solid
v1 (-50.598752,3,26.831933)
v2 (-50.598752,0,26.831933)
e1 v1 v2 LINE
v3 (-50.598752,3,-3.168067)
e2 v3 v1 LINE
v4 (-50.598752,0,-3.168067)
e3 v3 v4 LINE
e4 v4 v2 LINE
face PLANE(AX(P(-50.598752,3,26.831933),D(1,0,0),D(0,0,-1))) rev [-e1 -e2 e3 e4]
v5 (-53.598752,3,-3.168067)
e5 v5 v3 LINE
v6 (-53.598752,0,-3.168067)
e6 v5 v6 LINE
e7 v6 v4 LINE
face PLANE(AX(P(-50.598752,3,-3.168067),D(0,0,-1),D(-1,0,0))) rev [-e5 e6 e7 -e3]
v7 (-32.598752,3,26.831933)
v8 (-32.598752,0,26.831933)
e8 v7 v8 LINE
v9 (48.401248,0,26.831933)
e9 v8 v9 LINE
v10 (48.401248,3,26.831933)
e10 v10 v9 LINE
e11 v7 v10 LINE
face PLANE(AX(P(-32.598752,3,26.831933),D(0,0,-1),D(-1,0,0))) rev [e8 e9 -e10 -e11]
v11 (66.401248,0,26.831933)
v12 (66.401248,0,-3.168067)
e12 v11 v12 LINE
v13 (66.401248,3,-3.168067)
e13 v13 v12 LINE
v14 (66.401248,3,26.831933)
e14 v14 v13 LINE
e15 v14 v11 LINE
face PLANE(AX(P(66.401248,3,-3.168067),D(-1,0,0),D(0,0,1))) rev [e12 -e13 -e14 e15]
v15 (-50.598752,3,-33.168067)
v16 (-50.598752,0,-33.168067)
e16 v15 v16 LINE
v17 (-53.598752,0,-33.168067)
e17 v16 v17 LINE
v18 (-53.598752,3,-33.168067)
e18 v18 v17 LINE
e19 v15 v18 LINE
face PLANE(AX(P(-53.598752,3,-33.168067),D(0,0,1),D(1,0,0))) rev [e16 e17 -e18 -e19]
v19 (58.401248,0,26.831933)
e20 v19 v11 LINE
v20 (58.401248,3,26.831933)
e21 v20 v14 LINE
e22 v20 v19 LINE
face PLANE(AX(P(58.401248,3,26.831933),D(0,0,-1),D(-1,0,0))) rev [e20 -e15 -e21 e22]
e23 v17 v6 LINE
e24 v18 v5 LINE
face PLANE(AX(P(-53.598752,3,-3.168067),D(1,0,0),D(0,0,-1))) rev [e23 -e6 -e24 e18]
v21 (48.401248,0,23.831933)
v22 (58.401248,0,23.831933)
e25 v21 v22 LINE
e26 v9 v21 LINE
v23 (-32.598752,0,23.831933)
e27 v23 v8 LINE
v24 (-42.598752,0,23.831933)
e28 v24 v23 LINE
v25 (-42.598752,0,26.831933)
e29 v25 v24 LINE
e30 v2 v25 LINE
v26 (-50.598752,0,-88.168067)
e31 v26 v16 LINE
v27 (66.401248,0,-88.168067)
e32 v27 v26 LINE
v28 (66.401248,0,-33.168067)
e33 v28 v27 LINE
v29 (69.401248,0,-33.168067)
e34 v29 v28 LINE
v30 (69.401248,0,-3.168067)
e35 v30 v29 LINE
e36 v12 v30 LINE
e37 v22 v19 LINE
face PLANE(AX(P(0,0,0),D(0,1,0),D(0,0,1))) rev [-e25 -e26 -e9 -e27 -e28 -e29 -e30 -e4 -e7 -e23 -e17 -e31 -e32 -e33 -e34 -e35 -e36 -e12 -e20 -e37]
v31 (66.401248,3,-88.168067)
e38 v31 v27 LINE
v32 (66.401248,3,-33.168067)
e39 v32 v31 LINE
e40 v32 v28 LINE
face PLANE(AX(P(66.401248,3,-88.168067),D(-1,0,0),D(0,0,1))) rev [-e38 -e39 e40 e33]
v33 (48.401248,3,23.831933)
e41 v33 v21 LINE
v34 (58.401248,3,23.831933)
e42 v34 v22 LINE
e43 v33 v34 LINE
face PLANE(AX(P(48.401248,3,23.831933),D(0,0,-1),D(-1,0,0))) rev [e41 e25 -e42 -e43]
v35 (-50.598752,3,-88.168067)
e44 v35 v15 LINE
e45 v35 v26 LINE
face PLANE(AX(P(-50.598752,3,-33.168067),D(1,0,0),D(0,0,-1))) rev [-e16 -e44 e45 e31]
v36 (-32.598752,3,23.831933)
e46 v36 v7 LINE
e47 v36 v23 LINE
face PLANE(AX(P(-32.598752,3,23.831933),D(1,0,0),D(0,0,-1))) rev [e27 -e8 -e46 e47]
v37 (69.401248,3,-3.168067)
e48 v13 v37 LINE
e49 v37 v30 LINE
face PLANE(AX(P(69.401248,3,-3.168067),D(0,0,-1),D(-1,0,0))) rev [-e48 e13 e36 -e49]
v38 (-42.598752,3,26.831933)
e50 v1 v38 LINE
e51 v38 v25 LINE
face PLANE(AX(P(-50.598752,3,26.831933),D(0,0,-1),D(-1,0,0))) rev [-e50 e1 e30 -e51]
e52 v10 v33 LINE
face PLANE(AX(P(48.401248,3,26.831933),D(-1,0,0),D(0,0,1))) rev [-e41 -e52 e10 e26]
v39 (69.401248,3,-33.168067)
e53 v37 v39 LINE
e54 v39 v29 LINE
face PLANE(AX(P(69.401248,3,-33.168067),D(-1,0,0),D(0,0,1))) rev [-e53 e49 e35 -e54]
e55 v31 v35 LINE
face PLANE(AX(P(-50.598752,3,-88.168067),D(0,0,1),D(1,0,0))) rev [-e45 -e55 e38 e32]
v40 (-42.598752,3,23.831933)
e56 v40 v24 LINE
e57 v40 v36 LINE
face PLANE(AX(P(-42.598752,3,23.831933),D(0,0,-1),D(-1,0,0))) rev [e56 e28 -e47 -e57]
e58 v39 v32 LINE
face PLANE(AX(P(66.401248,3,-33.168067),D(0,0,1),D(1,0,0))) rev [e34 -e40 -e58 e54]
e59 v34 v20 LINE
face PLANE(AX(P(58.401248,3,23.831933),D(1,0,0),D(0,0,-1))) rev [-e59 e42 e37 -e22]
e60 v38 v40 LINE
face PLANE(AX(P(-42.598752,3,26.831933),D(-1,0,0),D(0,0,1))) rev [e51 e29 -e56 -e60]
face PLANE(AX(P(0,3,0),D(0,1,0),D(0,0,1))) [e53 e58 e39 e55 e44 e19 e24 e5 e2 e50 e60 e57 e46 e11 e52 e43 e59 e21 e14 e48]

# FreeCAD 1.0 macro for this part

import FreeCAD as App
import Part
import Sketcher
from FreeCAD import Vector

doc = App.newDocument("Part")
params = doc.addObject("Spreadsheet::Sheet", "Params")
for row, (alias, value) in enumerate([
    ("sketch1_width", "8 mm"),
    ("sketch1_width2", "10 mm"),
    ("sketch1_width3", "81 mm"),
    ("sketch1_width4", "3 mm"),
    ("sketch1_height", "30 mm"),
    ("pad1_length", "3 mm"),
], start=1):
    params.set(f"A{row}", alias)
    params.set(f"B{row}", "=" + value)
    params.setAlias(f"B{row}", alias)

body = doc.addObject("PartDesign::Body", "Body")

# Sketch on XZ plane
sketch1 = body.newObject("Sketcher::SketchObject", "Sketch")
sketch1.AttachmentSupport = (doc.getObject("XZ_Plane"), [""])
sketch1.MapMode = "FlatFace"
sketch1.addGeometry(Part.LineSegment(Vector(-50.6, -3.2, 0), Vector(-50.6, 26.8, 0)), False)
sketch1.addGeometry(Part.LineSegment(Vector(-50.6, 26.8, 0), Vector(-42.6, 26.8, 0)), False)
sketch1.addGeometry(Part.LineSegment(Vector(-42.6, 26.8, 0), Vector(-42.6, 23.8, 0)), False)
sketch1.addGeometry(Part.LineSegment(Vector(-42.6, 23.8, 0), Vector(-32.6, 23.8, 0)), False)
sketch1.addGeometry(Part.LineSegment(Vector(-32.6, 23.8, 0), Vector(-32.6, 26.8, 0)), False)
sketch1.addGeometry(Part.LineSegment(Vector(-32.6, 26.8, 0), Vector(48.4, 26.8, 0)), False)
sketch1.addGeometry(Part.LineSegment(Vector(48.4, 26.8, 0), Vector(48.4, 23.8, 0)), False)
sketch1.addGeometry(Part.LineSegment(Vector(48.4, 23.8, 0), Vector(58.4, 23.8, 0)), False)
sketch1.addGeometry(Part.LineSegment(Vector(58.4, 23.8, 0), Vector(58.4, 26.8, 0)), False)
sketch1.addGeometry(Part.LineSegment(Vector(58.4, 26.8, 0), Vector(66.4, 26.8, 0)), False)
sketch1.addGeometry(Part.LineSegment(Vector(66.4, 26.8, 0), Vector(66.4, -3.2, 0)), False)
sketch1.addGeometry(Part.LineSegment(Vector(66.4, -3.2, 0), Vector(69.4, -3.2, 0)), False)
sketch1.addGeometry(Part.LineSegment(Vector(69.4, -3.2, 0), Vector(69.4, -33.2, 0)), False)
sketch1.addGeometry(Part.LineSegment(Vector(69.4, -33.2, 0), Vector(66.4, -33.2, 0)), False)
sketch1.addGeometry(Part.LineSegment(Vector(66.4, -33.2, 0), Vector(66.4, -88.2, 0)), False)
sketch1.addGeometry(Part.LineSegment(Vector(66.4, -88.2, 0), Vector(-50.6, -88.2, 0)), False)
sketch1.addGeometry(Part.LineSegment(Vector(-50.6, -88.2, 0), Vector(-50.6, -33.2, 0)), False)
sketch1.addGeometry(Part.LineSegment(Vector(-50.6, -33.2, 0), Vector(-53.6, -33.2, 0)), False)
sketch1.addGeometry(Part.LineSegment(Vector(-53.6, -33.2, 0), Vector(-53.6, -3.2, 0)), False)
sketch1.addGeometry(Part.LineSegment(Vector(-53.6, -3.2, 0), Vector(-50.6, -3.2, 0)), False)
sketch1.addConstraint(Sketcher.Constraint("Coincident", 0, 2, 1, 1))
sketch1.addConstraint(Sketcher.Constraint("Coincident", 1, 2, 2, 1))
sketch1.addConstraint(Sketcher.Constraint("Coincident", 2, 2, 3, 1))
sketch1.addConstraint(Sketcher.Constraint("Coincident", 3, 2, 4, 1))
sketch1.addConstraint(Sketcher.Constraint("Coincident", 4, 2, 5, 1))
sketch1.addConstraint(Sketcher.Constraint("Coincident", 5, 2, 6, 1))
sketch1.addConstraint(Sketcher.Constraint("Coincident", 6, 2, 7, 1))
sketch1.addConstraint(Sketcher.Constraint("Coincident", 7, 2, 8, 1))
sketch1.addConstraint(Sketcher.Constraint("Coincident", 8, 2, 9, 1))
sketch1.addConstraint(Sketcher.Constraint("Coincident", 9, 2, 10, 1))
sketch1.addConstraint(Sketcher.Constraint("Coincident", 10, 2, 11, 1))
sketch1.addConstraint(Sketcher.Constraint("Coincident", 11, 2, 12, 1))
sketch1.addConstraint(Sketcher.Constraint("Coincident", 12, 2, 13, 1))
sketch1.addConstraint(Sketcher.Constraint("Coincident", 13, 2, 14, 1))
sketch1.addConstraint(Sketcher.Constraint("Coincident", 14, 2, 15, 1))
sketch1.addConstraint(Sketcher.Constraint("Coincident", 15, 2, 16, 1))
sketch1.addConstraint(Sketcher.Constraint("Coincident", 16, 2, 17, 1))
sketch1.addConstraint(Sketcher.Constraint("Coincident", 17, 2, 18, 1))
sketch1.addConstraint(Sketcher.Constraint("Coincident", 18, 2, 19, 1))
sketch1.addConstraint(Sketcher.Constraint("Coincident", 19, 2, 0, 1))
sketch1.addConstraint(Sketcher.Constraint("Vertical", 0))
sketch1.addConstraint(Sketcher.Constraint("Horizontal", 1))
sketch1.addConstraint(Sketcher.Constraint("Vertical", 2))
sketch1.addConstraint(Sketcher.Constraint("Horizontal", 3))
sketch1.addConstraint(Sketcher.Constraint("Vertical", 4))
sketch1.addConstraint(Sketcher.Constraint("Horizontal", 5))
sketch1.addConstraint(Sketcher.Constraint("Vertical", 6))
sketch1.addConstraint(Sketcher.Constraint("Horizontal", 7))
sketch1.addConstraint(Sketcher.Constraint("Vertical", 8))
sketch1.addConstraint(Sketcher.Constraint("Horizontal", 9))
sketch1.addConstraint(Sketcher.Constraint("Vertical", 10))
sketch1.addConstraint(Sketcher.Constraint("Horizontal", 11))
sketch1.addConstraint(Sketcher.Constraint("Vertical", 12))
sketch1.addConstraint(Sketcher.Constraint("Horizontal", 13))
sketch1.addConstraint(Sketcher.Constraint("Vertical", 14))
sketch1.addConstraint(Sketcher.Constraint("Horizontal", 15))
sketch1.addConstraint(Sketcher.Constraint("Vertical", 16))
sketch1.addConstraint(Sketcher.Constraint("Horizontal", 17))
sketch1.addConstraint(Sketcher.Constraint("Vertical", 18))
sketch1.addConstraint(Sketcher.Constraint("Horizontal", 19))
sketch1.addConstraint(Sketcher.Constraint("Horizontal", 1, 2, 4, 2))
sketch1.addConstraint(Sketcher.Constraint("Horizontal", 3, 2, 6, 2))
sketch1.addConstraint(Sketcher.Constraint("Horizontal", 5, 2, 8, 2))
sketch1.addConstraint(Sketcher.Constraint("Horizontal", 13, 2, 16, 2))
sketch1.addConstraint(Sketcher.Constraint("Horizontal", 11, 2, 18, 2))
sketch1.addConstraint(Sketcher.Constraint("Vertical", 10, 2, 13, 2))
sketch1.addConstraint(Sketcher.Constraint("Vertical", 0, 2, 15, 2))
sketch1.addConstraint(Sketcher.Constraint("Equal", 3, 7))
sketch1.addConstraint(Sketcher.Constraint("Equal", 1, 9))
sketch1.addConstraint(Sketcher.Constraint("Equal", 13, 17))
sketch1.addConstraint(Sketcher.Constraint("Equal", 19, 2))
sketch1.addConstraint(Sketcher.Constraint("Equal", 10, 12))
sketch1.addConstraint(Sketcher.Constraint("DistanceX", 1, 1, 1, 2, 8.0))
sketch1.addConstraint(Sketcher.Constraint("DistanceX", 3, 1, 3, 2, 10.0))
sketch1.addConstraint(Sketcher.Constraint("DistanceX", 5, 1, 5, 2, 81.0))
sketch1.addConstraint(Sketcher.Constraint("DistanceX", 11, 1, 11, 2, 3.0))
sketch1.addConstraint(Sketcher.Constraint("DistanceY", 0, 1, 0, 2, 30.0))
sketch1.addConstraint(Sketcher.Constraint("DistanceY", 14, 2, 14, 1, 55.0))
sketch1.addConstraint(Sketcher.Constraint("DistanceX", 0, 2, -1, 1, 50.598752))
sketch1.addConstraint(Sketcher.Constraint("DistanceY", -1, 1, 0, 2, 26.831933))
sketch1.setExpression("Constraints[52]", "Params.sketch1_width")
sketch1.setExpression("Constraints[53]", "Params.sketch1_width2")
sketch1.setExpression("Constraints[54]", "Params.sketch1_width3")
sketch1.setExpression("Constraints[55]", "Params.sketch1_width4")
sketch1.setExpression("Constraints[56]", "Params.sketch1_height")
pad1 = body.newObject("PartDesign::Pad", "Pad")
pad1.Profile = sketch1
pad1.setExpression("Length", "Params.pad1_length")
pad1.Reversed = True

doc.recompute()
